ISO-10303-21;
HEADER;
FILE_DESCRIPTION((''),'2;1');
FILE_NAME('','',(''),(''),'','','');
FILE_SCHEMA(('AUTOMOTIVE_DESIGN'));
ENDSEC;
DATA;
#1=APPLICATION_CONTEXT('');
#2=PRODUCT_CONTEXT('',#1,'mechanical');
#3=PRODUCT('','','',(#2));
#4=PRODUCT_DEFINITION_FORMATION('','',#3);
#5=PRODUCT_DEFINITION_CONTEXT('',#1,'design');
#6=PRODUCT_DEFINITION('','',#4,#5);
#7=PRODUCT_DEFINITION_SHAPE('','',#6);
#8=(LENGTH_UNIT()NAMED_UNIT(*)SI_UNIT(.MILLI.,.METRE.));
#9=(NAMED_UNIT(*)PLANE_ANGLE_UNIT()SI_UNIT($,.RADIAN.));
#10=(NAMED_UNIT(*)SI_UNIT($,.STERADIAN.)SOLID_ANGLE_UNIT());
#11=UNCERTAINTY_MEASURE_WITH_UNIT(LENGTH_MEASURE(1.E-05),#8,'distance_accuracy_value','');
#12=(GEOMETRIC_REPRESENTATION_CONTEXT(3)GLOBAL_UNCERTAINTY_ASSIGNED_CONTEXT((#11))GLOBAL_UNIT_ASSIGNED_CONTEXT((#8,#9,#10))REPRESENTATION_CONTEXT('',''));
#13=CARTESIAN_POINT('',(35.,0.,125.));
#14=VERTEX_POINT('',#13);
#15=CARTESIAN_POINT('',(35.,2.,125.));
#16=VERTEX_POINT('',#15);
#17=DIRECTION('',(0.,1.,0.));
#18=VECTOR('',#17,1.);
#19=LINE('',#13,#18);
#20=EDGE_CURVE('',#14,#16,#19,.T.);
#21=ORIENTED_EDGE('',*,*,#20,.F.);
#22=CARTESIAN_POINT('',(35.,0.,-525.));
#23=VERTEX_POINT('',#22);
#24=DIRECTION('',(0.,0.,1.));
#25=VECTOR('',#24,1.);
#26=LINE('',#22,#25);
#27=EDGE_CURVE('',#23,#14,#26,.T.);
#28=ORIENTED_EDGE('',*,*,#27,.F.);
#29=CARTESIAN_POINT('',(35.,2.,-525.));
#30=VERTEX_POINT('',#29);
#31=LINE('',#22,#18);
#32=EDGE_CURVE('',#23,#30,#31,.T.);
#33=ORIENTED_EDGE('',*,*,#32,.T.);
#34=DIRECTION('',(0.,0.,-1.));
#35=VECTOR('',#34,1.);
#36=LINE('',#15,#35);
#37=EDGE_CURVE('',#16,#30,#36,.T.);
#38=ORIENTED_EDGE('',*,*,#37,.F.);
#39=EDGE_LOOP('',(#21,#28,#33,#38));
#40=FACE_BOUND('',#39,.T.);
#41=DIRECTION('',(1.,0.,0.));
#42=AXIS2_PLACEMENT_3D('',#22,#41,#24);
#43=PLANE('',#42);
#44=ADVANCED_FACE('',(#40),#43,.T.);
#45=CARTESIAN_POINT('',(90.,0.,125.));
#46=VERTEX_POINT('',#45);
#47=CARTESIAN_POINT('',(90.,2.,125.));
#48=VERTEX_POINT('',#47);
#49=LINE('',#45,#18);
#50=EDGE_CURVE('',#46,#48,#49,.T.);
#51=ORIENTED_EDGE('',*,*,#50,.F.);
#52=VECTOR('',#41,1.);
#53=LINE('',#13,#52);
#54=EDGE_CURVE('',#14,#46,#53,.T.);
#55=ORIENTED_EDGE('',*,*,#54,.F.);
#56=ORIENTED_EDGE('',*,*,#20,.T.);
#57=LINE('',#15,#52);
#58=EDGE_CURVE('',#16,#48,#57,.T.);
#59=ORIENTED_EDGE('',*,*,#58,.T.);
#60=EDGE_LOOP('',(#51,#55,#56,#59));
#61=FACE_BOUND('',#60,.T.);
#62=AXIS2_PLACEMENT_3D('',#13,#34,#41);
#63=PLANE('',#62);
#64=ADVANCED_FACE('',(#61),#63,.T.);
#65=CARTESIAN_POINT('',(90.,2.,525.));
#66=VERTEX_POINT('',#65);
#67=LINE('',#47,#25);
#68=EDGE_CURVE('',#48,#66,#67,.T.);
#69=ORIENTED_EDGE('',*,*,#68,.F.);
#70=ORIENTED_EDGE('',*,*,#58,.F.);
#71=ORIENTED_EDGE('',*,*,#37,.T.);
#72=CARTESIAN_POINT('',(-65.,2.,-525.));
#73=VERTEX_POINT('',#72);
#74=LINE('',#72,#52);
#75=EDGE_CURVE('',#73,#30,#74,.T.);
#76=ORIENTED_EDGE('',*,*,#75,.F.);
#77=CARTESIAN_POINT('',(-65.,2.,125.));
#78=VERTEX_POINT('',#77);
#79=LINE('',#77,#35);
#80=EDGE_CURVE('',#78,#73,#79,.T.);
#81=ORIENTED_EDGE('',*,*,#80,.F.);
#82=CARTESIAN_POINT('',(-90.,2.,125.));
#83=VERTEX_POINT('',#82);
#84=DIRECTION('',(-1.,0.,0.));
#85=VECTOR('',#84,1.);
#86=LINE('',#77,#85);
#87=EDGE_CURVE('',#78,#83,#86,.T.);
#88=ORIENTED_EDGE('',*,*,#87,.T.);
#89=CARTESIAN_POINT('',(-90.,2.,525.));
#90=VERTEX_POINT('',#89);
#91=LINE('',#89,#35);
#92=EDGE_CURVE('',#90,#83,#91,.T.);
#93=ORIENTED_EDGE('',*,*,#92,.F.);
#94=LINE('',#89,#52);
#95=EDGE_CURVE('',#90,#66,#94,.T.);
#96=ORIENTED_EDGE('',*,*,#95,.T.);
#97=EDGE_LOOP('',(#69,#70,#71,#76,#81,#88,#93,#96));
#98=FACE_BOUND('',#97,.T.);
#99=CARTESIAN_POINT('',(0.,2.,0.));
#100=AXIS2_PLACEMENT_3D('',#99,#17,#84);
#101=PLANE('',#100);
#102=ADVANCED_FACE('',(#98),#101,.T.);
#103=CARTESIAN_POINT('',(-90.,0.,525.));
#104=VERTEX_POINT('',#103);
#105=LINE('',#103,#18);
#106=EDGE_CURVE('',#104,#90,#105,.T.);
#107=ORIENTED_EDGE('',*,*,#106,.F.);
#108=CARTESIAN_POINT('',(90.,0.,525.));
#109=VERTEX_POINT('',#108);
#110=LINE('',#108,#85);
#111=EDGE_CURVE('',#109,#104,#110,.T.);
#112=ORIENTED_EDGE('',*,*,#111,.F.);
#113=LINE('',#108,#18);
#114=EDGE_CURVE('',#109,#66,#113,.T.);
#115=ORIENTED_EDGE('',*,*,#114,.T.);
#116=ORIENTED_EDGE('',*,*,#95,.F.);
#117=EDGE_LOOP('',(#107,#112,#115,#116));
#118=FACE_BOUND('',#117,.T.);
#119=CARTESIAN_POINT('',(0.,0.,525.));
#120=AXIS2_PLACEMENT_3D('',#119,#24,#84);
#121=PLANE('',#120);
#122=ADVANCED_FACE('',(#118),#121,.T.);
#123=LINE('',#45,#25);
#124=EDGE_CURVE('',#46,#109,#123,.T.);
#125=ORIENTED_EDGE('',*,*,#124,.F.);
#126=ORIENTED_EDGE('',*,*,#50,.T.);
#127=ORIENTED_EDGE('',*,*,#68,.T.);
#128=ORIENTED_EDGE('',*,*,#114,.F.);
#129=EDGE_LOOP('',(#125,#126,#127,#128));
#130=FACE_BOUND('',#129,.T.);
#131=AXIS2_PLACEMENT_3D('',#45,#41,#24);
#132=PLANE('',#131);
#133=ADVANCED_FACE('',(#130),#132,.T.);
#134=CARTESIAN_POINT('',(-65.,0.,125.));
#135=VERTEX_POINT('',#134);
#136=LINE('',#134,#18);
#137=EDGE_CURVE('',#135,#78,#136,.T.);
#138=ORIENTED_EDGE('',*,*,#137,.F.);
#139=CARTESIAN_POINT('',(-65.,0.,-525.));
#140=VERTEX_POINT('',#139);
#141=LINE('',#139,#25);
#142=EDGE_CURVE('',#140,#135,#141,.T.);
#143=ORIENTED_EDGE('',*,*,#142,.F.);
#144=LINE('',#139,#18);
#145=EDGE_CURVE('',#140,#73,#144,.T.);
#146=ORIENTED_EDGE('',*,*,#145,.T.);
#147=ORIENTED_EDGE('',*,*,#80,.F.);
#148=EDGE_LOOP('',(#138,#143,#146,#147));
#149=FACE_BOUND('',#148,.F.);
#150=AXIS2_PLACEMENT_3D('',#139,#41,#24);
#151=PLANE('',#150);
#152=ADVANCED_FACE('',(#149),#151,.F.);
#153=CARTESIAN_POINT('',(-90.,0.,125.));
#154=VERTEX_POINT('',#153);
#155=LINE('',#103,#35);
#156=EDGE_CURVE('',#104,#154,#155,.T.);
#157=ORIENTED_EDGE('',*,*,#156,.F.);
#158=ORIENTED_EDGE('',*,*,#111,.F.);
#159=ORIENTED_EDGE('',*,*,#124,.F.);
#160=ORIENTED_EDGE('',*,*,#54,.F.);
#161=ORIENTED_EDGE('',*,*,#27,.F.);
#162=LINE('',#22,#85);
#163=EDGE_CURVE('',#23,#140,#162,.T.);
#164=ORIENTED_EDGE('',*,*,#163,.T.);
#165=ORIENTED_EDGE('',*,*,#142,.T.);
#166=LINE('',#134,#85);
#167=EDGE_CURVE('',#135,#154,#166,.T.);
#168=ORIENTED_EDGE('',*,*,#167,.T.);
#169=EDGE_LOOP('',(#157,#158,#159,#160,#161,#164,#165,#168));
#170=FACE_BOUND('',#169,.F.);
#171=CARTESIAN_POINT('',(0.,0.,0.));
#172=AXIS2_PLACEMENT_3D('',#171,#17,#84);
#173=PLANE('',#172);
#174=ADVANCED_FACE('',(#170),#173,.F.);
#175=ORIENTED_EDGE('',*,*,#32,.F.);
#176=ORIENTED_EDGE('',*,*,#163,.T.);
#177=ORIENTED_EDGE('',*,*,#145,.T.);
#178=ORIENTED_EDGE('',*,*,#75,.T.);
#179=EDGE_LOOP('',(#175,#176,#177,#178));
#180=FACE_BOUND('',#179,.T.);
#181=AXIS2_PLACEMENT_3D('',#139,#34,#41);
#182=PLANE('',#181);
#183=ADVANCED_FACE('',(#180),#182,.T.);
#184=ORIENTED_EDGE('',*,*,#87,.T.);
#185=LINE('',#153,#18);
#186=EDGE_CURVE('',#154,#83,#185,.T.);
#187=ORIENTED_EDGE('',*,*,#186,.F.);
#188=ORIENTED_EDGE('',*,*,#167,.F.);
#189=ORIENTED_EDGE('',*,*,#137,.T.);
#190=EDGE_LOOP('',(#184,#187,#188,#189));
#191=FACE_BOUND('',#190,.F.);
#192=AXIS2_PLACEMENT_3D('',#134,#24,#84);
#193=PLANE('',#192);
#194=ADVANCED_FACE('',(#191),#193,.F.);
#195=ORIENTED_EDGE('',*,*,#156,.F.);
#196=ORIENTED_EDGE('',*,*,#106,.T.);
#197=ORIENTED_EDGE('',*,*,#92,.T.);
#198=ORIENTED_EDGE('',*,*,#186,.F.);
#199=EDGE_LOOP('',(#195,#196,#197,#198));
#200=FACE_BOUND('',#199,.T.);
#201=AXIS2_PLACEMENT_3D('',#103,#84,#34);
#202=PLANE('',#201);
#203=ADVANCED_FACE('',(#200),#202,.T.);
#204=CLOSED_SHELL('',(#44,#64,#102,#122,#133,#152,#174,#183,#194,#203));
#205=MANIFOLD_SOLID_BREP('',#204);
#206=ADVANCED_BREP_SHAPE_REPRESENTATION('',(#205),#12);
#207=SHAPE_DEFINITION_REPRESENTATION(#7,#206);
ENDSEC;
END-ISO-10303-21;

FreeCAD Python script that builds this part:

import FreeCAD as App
import Part
import Sketcher

doc = App.newDocument("Part")
body = doc.addObject("PartDesign::Body", "Body")

# Sketch on XZ plane
sketch1 = body.newObject("Sketcher::SketchObject", "Sketch")
sketch1.AttachmentSupport = (doc.getObject("XZ_Plane"), [""])
sketch1.MapMode = "FlatFace"
sketch1.addGeometry([
    Part.LineSegment(App.Vector(-65, -525, 0), App.Vector(-65, 125, 0)),  # 0
    Part.LineSegment(App.Vector(-65, 125, 0), App.Vector(-90, 125, 0)),  # 1
    Part.LineSegment(App.Vector(-90, 125, 0), App.Vector(-90, 525, 0)),  # 2
    Part.LineSegment(App.Vector(-90, 525, 0), App.Vector(90, 525, 0)),  # 3
    Part.LineSegment(App.Vector(90, 525, 0), App.Vector(90, 125, 0)),  # 4
    Part.LineSegment(App.Vector(90, 125, 0), App.Vector(35, 125, 0)),  # 5
    Part.LineSegment(App.Vector(35, 125, 0), App.Vector(35, -525, 0)),  # 6
    Part.LineSegment(App.Vector(35, -525, 0), App.Vector(-65, -525, 0)),  # 7
], False)
sketch1.addConstraint([
    Sketcher.Constraint("Coincident", 0, 2, 1, 1),
    Sketcher.Constraint("Coincident", 1, 2, 2, 1),
    Sketcher.Constraint("Coincident", 2, 2, 3, 1),
    Sketcher.Constraint("Coincident", 3, 2, 4, 1),
    Sketcher.Constraint("Coincident", 4, 2, 5, 1),
    Sketcher.Constraint("Coincident", 5, 2, 6, 1),
    Sketcher.Constraint("Coincident", 6, 2, 7, 1),
    Sketcher.Constraint("Coincident", 7, 2, 0, 1),
    Sketcher.Constraint("Vertical", 0),
    Sketcher.Constraint("Horizontal", 1),
    Sketcher.Constraint("Vertical", 2),
    Sketcher.Constraint("Horizontal", 3),
    Sketcher.Constraint("Vertical", 4),
    Sketcher.Constraint("Horizontal", 5),
    Sketcher.Constraint("Vertical", 6),
    Sketcher.Constraint("Horizontal", 7),
    Sketcher.Constraint("Symmetric", 1, 2, 4, 2, -2),
    Sketcher.Constraint("DistanceX", 1, 2, 1, 1, 25.0),
    Sketcher.Constraint("DistanceX", 3, 1, 3, 2, 180.0),
    Sketcher.Constraint("DistanceY", 0, 1, 0, 2, 650.0),
    Sketcher.Constraint("DistanceY", -1, 1, 0, 2, 125.0),
    Sketcher.Constraint("DistanceX", 1, 2, 5, 2, 125.0),
    Sketcher.Constraint("DistanceY", 6, 2, 3, 2, 1050.0),
])
pad1 = body.newObject("PartDesign::Pad", "Pad")
pad1.Profile = sketch1
pad1.Length = 2
pad1.Reversed = True

doc.recompute()
